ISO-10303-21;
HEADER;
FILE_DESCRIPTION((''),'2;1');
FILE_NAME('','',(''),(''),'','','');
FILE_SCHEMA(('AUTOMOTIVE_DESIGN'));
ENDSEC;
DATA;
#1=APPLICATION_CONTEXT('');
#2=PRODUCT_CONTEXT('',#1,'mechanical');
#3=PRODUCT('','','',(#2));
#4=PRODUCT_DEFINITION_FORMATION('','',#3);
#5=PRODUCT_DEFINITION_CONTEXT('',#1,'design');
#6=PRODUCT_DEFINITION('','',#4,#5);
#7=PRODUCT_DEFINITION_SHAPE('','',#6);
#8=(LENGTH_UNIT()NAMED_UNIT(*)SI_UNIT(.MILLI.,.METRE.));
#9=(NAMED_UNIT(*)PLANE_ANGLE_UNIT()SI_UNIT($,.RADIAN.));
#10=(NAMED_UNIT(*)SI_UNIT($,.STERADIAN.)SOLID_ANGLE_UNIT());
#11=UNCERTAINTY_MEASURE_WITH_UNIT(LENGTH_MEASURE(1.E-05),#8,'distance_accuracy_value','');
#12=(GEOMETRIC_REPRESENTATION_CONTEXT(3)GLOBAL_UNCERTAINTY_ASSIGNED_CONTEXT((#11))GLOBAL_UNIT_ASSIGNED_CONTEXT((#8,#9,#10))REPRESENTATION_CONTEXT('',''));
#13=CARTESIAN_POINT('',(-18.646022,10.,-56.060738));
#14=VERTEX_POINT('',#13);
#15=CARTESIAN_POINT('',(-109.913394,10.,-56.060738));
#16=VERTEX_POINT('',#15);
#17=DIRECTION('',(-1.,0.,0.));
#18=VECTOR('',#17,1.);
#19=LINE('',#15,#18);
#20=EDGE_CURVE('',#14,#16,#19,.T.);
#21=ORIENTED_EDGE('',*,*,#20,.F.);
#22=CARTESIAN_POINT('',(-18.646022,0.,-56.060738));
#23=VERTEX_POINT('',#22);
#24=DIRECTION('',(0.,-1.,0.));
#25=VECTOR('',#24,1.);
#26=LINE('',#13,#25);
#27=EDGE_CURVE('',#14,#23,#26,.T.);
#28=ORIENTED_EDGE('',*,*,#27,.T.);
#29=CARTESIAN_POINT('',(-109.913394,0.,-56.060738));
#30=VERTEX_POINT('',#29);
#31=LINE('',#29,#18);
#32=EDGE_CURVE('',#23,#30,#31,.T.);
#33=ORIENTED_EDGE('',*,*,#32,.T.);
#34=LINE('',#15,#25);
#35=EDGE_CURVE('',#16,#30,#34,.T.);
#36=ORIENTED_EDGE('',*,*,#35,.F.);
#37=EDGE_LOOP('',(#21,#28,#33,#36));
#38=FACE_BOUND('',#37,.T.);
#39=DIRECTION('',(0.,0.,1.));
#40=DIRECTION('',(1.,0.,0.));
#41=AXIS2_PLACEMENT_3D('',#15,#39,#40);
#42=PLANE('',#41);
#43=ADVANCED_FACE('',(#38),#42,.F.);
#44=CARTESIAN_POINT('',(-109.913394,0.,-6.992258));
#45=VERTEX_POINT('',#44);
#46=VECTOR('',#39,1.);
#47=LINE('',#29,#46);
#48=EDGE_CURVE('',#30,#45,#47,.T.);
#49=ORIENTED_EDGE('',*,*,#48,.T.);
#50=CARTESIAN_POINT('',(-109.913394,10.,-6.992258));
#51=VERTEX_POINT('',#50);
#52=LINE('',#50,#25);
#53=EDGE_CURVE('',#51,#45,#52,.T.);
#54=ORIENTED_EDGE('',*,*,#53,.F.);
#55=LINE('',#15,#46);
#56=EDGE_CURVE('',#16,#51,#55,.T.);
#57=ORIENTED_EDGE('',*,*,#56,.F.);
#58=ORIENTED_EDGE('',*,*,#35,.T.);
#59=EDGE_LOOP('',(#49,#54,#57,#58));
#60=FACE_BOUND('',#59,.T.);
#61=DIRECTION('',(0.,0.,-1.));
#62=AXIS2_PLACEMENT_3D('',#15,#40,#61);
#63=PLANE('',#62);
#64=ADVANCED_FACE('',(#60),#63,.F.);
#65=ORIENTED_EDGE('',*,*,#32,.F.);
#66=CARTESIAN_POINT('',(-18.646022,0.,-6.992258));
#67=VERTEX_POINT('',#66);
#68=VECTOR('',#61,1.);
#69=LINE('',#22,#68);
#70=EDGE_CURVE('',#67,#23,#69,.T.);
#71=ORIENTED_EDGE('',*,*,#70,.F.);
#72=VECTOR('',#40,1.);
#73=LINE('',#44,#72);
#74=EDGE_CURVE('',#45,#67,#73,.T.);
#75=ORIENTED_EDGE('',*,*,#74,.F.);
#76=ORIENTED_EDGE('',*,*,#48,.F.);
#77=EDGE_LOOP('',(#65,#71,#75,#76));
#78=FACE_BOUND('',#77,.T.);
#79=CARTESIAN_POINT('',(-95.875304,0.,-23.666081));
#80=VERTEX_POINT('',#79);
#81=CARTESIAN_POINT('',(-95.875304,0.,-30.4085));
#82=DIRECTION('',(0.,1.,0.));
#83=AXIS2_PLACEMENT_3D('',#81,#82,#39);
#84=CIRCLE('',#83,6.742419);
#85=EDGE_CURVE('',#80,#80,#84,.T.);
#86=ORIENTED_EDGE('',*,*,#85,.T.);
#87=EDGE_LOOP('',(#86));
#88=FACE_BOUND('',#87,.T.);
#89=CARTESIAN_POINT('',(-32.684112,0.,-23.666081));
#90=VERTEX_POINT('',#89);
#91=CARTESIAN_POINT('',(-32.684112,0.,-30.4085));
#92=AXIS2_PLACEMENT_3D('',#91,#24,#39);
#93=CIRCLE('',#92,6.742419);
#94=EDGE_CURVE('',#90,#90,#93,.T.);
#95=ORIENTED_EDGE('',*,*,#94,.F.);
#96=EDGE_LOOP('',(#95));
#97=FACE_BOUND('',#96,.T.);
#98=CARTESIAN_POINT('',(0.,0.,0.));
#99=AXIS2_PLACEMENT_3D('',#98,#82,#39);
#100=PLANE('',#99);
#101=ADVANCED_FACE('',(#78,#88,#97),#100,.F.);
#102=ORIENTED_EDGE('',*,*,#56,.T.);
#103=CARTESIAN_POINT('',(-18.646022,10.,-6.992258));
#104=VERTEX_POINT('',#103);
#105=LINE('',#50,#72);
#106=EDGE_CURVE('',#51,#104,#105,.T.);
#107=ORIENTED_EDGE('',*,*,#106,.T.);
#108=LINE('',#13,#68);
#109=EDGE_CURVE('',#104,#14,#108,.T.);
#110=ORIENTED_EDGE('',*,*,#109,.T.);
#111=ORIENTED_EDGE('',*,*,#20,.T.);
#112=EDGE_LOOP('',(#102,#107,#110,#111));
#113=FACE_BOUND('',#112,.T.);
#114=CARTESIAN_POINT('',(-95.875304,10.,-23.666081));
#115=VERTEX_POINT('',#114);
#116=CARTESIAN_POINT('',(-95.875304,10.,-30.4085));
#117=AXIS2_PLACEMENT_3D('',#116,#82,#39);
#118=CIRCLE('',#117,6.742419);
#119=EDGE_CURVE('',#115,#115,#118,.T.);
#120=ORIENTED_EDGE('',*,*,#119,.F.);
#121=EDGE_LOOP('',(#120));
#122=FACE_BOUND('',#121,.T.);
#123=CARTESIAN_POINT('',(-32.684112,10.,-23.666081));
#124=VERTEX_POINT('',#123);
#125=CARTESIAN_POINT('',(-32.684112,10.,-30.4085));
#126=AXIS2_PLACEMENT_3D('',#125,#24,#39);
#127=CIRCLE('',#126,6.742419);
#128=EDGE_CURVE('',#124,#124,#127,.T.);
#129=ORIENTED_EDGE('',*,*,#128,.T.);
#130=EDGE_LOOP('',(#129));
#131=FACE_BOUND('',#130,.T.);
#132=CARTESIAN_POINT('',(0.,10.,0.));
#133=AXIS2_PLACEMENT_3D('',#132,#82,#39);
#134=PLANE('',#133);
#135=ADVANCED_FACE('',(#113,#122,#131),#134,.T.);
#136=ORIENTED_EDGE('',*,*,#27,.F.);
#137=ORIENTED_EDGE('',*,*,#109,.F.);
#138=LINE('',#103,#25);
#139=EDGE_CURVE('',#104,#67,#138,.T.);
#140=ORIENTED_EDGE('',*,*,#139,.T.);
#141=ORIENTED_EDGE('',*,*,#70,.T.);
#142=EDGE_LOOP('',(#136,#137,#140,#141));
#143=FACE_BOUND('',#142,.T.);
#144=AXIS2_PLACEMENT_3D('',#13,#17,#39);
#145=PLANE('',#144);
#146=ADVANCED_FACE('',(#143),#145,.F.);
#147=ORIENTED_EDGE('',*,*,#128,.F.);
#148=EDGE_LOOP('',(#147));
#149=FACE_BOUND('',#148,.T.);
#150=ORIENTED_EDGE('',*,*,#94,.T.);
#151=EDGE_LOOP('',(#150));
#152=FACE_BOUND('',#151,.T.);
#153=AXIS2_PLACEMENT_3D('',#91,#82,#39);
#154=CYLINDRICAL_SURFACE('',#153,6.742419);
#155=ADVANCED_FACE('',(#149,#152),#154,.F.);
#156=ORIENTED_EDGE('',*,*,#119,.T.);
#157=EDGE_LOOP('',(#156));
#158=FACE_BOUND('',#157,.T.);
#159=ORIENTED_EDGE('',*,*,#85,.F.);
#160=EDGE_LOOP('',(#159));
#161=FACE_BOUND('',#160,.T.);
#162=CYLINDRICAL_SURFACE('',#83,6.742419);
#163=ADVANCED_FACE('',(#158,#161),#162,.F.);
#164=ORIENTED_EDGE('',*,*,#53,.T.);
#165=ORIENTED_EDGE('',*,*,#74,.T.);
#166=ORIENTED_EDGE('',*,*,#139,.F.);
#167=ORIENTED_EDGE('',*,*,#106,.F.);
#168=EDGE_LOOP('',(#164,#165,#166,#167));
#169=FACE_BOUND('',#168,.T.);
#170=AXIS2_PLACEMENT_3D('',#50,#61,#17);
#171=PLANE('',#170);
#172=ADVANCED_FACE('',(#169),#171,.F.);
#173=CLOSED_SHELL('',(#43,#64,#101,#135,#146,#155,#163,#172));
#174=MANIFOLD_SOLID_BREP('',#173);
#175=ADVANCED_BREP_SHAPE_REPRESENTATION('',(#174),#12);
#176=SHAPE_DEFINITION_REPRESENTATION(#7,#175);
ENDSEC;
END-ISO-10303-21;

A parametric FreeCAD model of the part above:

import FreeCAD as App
import Part
import Sketcher
Q = App.Units.Quantity


def add_polygon(sketch, points):
    """Adds a closed chain of lines whose ends are joined by coincident constraints."""
    first, n = sketch.GeometryCount, len(points)
    for a, b in zip(points, points[1:] + points[:1]):
        sketch.addGeometry(Part.LineSegment(App.Vector(*a, 0), App.Vector(*b, 0)), False)
    for i in range(n):
        sketch.addConstraint(Sketcher.Constraint("Coincident", first + i, 2, first + (i + 1) % n, 1))

doc = App.newDocument("Part")
params = doc.addObject("Spreadsheet::Sheet", "Params")
for row, (alias, value) in enumerate([
    ("pad1_length", "10 mm"),
    ("pocket1_length", "10 mm"),
], start=1):
    params.set(f"A{row}", alias)
    params.set(f"B{row}", "=" + value)
    params.setAlias(f"B{row}", alias)

body = doc.addObject("PartDesign::Body", "Body")

sketch1 = body.newObject("Sketcher::SketchObject", "Sketch")
sketch1.AttachmentSupport = (doc.getObject("XZ_Plane"), [""])
sketch1.MapMode = "FlatFace"
add_polygon(sketch1, [(-110, -56), (-110, -7), (-19, -7), (-19, -56)])
sketch1.addConstraint(Sketcher.Constraint("Vertical", 0))
sketch1.addConstraint(Sketcher.Constraint("Horizontal", 1))
sketch1.addConstraint(Sketcher.Constraint("Vertical", 2))
sketch1.addConstraint(Sketcher.Constraint("Horizontal", 3))
sketch1.addConstraint(Sketcher.Constraint("DistanceX", 1, 1, 1, 2, Q("91.267372 mm")))
sketch1.addConstraint(Sketcher.Constraint("DistanceY", 0, 1, 0, 2, Q("49.068479 mm")))
sketch1.addConstraint(Sketcher.Constraint("DistanceY", 0, 2, -1, 1, Q("6.992258 mm")))
sketch1.addConstraint(Sketcher.Constraint("DistanceX", 0, 2, -1, 1, Q("109.913394 mm")))
pad1 = body.newObject("PartDesign::Pad", "Pad")
pad1.Profile = sketch1
pad1.setExpression("Length", "Params.pad1_length")
pad1.Reversed = True

sketch2 = body.newObject("Sketcher::SketchObject", "Sketch001")
sketch2.AttachmentSupport = (doc.getObject("XZ_Plane"), [""])
sketch2.MapMode = "FlatFace"
sketch2.AttachmentOffset = App.Placement(App.Vector(0, 0, -10), App.Rotation())
sketch2.addGeometry(Part.Circle(App.Vector(-96, -30, 0), App.Vector(0, 0, 1), 7), False)
sketch2.addConstraint(Sketcher.Constraint("Diameter", 0, Q("13.484838 mm")))
sketch2.addConstraint(Sketcher.Constraint("DistanceY", 0, 3, -1, 1, Q("30.4085 mm")))
sketch2.addConstraint(Sketcher.Constraint("DistanceX", 0, 3, -1, 1, Q("95.875304 mm")))
pocket1 = body.newObject("PartDesign::Pocket", "Pocket")
pocket1.Profile = sketch2
pocket1.setExpression("Length", "Params.pocket1_length")
pocket1.Reversed = True
doc.recompute()

datumplane = body.newObject("PartDesign::Plane", "DatumPlane")
datumplane.AttachmentSupport = (doc.getObject("YZ_Plane"), [""])
datumplane.MapMode = "FlatFace"
datumplane.AttachmentOffset = App.Placement(App.Vector(0, 0, -64.279708), App.Rotation())
mirrored = body.newObject("PartDesign::Mirrored", "Mirrored")
mirrored.Originals = [pocket1]
mirrored.MirrorPlane = (datumplane, [""])
body.Tip = mirrored

doc.recompute()
